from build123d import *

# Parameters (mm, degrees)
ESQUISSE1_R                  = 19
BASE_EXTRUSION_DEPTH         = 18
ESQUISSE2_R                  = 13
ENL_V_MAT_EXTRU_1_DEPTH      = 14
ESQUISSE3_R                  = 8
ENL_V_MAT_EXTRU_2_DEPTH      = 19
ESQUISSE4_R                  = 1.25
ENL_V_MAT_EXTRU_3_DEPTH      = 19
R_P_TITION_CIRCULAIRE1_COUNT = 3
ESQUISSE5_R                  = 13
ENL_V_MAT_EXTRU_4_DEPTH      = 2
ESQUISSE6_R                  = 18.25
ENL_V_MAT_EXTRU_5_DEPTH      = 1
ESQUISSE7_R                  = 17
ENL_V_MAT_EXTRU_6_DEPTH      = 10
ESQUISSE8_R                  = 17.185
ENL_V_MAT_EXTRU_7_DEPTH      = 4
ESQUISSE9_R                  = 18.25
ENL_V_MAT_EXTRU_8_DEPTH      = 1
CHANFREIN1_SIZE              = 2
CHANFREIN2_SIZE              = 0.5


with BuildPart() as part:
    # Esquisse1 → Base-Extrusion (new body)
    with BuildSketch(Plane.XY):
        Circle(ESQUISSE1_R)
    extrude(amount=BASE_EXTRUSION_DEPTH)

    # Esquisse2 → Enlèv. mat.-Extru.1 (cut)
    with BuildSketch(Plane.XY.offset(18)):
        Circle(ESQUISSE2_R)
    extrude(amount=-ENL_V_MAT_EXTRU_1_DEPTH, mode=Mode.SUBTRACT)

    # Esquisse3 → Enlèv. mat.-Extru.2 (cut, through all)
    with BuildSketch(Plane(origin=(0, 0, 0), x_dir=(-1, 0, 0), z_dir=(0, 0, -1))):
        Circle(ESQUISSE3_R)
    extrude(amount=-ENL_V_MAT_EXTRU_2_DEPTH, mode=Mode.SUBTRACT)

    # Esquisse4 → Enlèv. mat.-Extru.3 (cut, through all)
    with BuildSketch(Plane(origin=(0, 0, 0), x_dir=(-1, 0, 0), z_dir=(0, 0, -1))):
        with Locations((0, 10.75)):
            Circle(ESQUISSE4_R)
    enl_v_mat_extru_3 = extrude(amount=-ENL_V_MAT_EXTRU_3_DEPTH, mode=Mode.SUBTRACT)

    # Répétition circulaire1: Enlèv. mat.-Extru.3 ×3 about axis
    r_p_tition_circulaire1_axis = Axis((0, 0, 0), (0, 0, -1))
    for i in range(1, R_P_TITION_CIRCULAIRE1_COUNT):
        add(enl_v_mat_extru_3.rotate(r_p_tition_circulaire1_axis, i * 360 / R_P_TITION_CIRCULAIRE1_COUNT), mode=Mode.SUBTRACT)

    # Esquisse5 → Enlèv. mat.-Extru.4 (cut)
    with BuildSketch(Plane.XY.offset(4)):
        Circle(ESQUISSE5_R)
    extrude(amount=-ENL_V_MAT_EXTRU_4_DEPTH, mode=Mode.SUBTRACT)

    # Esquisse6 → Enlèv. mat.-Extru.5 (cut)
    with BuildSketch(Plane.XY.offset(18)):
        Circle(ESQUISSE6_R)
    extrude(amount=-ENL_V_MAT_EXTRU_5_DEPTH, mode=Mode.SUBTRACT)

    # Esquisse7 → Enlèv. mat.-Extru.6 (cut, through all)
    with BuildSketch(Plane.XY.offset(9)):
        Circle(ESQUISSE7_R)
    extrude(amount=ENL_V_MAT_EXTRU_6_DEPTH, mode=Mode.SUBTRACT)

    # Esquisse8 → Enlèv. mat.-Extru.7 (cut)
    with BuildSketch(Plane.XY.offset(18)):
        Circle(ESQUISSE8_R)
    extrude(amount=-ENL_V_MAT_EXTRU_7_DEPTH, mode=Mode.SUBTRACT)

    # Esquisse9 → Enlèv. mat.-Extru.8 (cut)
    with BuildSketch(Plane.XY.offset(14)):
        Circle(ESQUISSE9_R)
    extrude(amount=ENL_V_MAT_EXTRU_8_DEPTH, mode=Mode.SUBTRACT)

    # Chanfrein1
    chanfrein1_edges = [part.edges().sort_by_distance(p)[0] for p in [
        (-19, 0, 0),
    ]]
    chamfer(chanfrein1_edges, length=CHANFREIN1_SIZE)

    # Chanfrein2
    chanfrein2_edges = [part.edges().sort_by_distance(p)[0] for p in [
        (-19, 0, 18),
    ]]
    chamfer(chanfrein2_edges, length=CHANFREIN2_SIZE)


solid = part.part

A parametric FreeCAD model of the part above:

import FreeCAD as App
import Part
import Sketcher

V = App.Vector
Q = App.Units.Quantity


def edges_at(feature, points):
    """Names of the edges that pass closest to the given points."""
    edges = feature.Shape.Edges
    near = lambda p: min(range(len(edges)), key=lambda i: edges[i].distToShape(Part.Vertex(*p))[0])
    return sorted({f"Edge{near(p) + 1}" for p in points})

doc = App.newDocument("Part")
body = doc.addObject("PartDesign::Body", "Body")

sketch1 = body.newObject("Sketcher::SketchObject", "Sketch")
sketch1.AttachmentSupport = (doc.getObject("XY_Plane"), [""])
sketch1.MapMode = "FlatFace"
sketch1.addGeometry(Part.Circle(V(0, 0, 0), V(0, 0, 1), 19), False)
sketch1.addConstraint([
    Sketcher.Constraint("Coincident", 0, 3, -1, 1),
    Sketcher.Constraint("Diameter", 0, Q("38 mm")),
])
pad1 = body.newObject("PartDesign::Pad", "Pad")
pad1.Profile = sketch1
pad1.Length = 18

sketch2 = body.newObject("Sketcher::SketchObject", "Sketch001")
sketch2.AttachmentSupport = (doc.getObject("XY_Plane"), [""])
sketch2.MapMode = "FlatFace"
sketch2.AttachmentOffset = App.Placement(V(0, 0, 18), App.Rotation())
sketch2.addGeometry(Part.Circle(V(0, 0, 0), V(0, 0, 1), 13), False)
sketch2.addConstraint([
    Sketcher.Constraint("Coincident", 0, 3, -1, 1),
    Sketcher.Constraint("Diameter", 0, Q("26 mm")),
])
pocket1 = body.newObject("PartDesign::Pocket", "Pocket")
pocket1.Profile = sketch2
pocket1.Length = 14

sketch3 = body.newObject("Sketcher::SketchObject", "Sketch002")
sketch3.AttachmentSupport = (doc.getObject("XY_Plane"), [""])
sketch3.MapMode = "FlatFace"
sketch3.addGeometry(Part.Circle(V(0, 0, 0), V(0, 0, 1), 8), False)
sketch3.addConstraint([
    Sketcher.Constraint("Coincident", 0, 3, -1, 1),
    Sketcher.Constraint("Diameter", 0, Q("16 mm")),
])
pocket2 = body.newObject("PartDesign::Pocket", "Pocket001")
pocket2.Profile = sketch3
pocket2.Type = "ThroughAll"
pocket2.Reversed = True

sketch4 = body.newObject("Sketcher::SketchObject", "Sketch003")
sketch4.AttachmentSupport = (doc.getObject("XY_Plane"), [""])
sketch4.MapMode = "FlatFace"
sketch4.addGeometry(Part.Circle(V(0, 10.8, 0), V(0, 0, 1), 1.2), False)
sketch4.addConstraint([
    Sketcher.Constraint("PointOnObject", 0, 3, -2),
    Sketcher.Constraint("Diameter", 0, Q("2.5 mm")),
    Sketcher.Constraint("DistanceY", -1, 1, 0, 3, Q("10.75 mm")),
])
pocket3 = body.newObject("PartDesign::Pocket", "Pocket002")
pocket3.Profile = sketch4
pocket3.Type = "ThroughAll"
pocket3.Reversed = True
doc.recompute()

polarpattern = body.newObject("PartDesign::PolarPattern", "PolarPattern")
polarpattern.Originals = [pocket3]
polarpattern.Axis = (doc.getObject("Z_Axis"), [""])
polarpattern.Angle = 360
polarpattern.Occurrences = 3
body.Tip = polarpattern

sketch5 = body.newObject("Sketcher::SketchObject", "Sketch004")
sketch5.AttachmentSupport = (doc.getObject("XY_Plane"), [""])
sketch5.MapMode = "FlatFace"
sketch5.AttachmentOffset = App.Placement(V(0, 0, 4), App.Rotation())
sketch5.addGeometry(Part.Circle(V(0, 0, 0), V(0, 0, 1), 13), False)
sketch5.addConstraint([
    Sketcher.Constraint("Coincident", 0, 3, -1, 1),
    Sketcher.Constraint("Diameter", 0, Q("26 mm")),
])
pocket4 = body.newObject("PartDesign::Pocket", "Pocket003")
pocket4.Profile = sketch5
pocket4.Length = 2

sketch6 = body.newObject("Sketcher::SketchObject", "Sketch005")
sketch6.AttachmentSupport = (doc.getObject("XY_Plane"), [""])
sketch6.MapMode = "FlatFace"
sketch6.AttachmentOffset = App.Placement(V(0, 0, 18), App.Rotation())
sketch6.addGeometry(Part.Circle(V(0, 0, 0), V(0, 0, 1), 18), False)
sketch6.addConstraint([
    Sketcher.Constraint("Coincident", 0, 3, -1, 1),
    Sketcher.Constraint("Diameter", 0, Q("36.5 mm")),
])
pocket5 = body.newObject("PartDesign::Pocket", "Pocket004")
pocket5.Profile = sketch6
pocket5.Length = 1

sketch7 = body.newObject("Sketcher::SketchObject", "Sketch006")
sketch7.AttachmentSupport = (doc.getObject("XY_Plane"), [""])
sketch7.MapMode = "FlatFace"
sketch7.AttachmentOffset = App.Placement(V(0, 0, 9), App.Rotation())
sketch7.addGeometry(Part.Circle(V(0, 0, 0), V(0, 0, 1), 17), False)
sketch7.addConstraint([
    Sketcher.Constraint("Coincident", 0, 3, -1, 1),
    Sketcher.Constraint("Diameter", 0, Q("34 mm")),
])
pocket6 = body.newObject("PartDesign::Pocket", "Pocket005")
pocket6.Profile = sketch7
pocket6.Type = "ThroughAll"
pocket6.Reversed = True

sketch8 = body.newObject("Sketcher::SketchObject", "Sketch007")
sketch8.AttachmentSupport = (doc.getObject("XY_Plane"), [""])
sketch8.MapMode = "FlatFace"
sketch8.AttachmentOffset = App.Placement(V(0, 0, 18), App.Rotation())
sketch8.addGeometry(Part.Circle(V(0, 0, 0), V(0, 0, 1), 17), False)
sketch8.addConstraint([
    Sketcher.Constraint("Coincident", 0, 3, -1, 1),
    Sketcher.Constraint("Diameter", 0, Q("34.37 mm")),
])
pocket7 = body.newObject("PartDesign::Pocket", "Pocket006")
pocket7.Profile = sketch8
pocket7.Length = 4

sketch9 = body.newObject("Sketcher::SketchObject", "Sketch008")
sketch9.AttachmentSupport = (doc.getObject("XY_Plane"), [""])
sketch9.MapMode = "FlatFace"
sketch9.AttachmentOffset = App.Placement(V(0, 0, 14), App.Rotation())
sketch9.addGeometry(Part.Circle(V(0, 0, 0), V(0, 0, 1), 18), False)
sketch9.addConstraint([
    Sketcher.Constraint("Coincident", 0, 3, -1, 1),
    Sketcher.Constraint("Diameter", 0, Q("36.5 mm")),
])
pocket8 = body.newObject("PartDesign::Pocket", "Pocket007")
pocket8.Profile = sketch9
pocket8.Length = 1
pocket8.Reversed = True
doc.recompute()

chamfer = body.newObject("PartDesign::Chamfer", "Chamfer")
chamfer.Base = (pocket8, edges_at(pocket8, [(-19, 0, 0)]))
chamfer.Size = 2
doc.recompute()

chamfer2 = body.newObject("PartDesign::Chamfer", "Chamfer001")
chamfer2.Base = (chamfer, edges_at(chamfer, [(-19, 0, 18)]))
chamfer2.Size = 0.5

doc.recompute()
